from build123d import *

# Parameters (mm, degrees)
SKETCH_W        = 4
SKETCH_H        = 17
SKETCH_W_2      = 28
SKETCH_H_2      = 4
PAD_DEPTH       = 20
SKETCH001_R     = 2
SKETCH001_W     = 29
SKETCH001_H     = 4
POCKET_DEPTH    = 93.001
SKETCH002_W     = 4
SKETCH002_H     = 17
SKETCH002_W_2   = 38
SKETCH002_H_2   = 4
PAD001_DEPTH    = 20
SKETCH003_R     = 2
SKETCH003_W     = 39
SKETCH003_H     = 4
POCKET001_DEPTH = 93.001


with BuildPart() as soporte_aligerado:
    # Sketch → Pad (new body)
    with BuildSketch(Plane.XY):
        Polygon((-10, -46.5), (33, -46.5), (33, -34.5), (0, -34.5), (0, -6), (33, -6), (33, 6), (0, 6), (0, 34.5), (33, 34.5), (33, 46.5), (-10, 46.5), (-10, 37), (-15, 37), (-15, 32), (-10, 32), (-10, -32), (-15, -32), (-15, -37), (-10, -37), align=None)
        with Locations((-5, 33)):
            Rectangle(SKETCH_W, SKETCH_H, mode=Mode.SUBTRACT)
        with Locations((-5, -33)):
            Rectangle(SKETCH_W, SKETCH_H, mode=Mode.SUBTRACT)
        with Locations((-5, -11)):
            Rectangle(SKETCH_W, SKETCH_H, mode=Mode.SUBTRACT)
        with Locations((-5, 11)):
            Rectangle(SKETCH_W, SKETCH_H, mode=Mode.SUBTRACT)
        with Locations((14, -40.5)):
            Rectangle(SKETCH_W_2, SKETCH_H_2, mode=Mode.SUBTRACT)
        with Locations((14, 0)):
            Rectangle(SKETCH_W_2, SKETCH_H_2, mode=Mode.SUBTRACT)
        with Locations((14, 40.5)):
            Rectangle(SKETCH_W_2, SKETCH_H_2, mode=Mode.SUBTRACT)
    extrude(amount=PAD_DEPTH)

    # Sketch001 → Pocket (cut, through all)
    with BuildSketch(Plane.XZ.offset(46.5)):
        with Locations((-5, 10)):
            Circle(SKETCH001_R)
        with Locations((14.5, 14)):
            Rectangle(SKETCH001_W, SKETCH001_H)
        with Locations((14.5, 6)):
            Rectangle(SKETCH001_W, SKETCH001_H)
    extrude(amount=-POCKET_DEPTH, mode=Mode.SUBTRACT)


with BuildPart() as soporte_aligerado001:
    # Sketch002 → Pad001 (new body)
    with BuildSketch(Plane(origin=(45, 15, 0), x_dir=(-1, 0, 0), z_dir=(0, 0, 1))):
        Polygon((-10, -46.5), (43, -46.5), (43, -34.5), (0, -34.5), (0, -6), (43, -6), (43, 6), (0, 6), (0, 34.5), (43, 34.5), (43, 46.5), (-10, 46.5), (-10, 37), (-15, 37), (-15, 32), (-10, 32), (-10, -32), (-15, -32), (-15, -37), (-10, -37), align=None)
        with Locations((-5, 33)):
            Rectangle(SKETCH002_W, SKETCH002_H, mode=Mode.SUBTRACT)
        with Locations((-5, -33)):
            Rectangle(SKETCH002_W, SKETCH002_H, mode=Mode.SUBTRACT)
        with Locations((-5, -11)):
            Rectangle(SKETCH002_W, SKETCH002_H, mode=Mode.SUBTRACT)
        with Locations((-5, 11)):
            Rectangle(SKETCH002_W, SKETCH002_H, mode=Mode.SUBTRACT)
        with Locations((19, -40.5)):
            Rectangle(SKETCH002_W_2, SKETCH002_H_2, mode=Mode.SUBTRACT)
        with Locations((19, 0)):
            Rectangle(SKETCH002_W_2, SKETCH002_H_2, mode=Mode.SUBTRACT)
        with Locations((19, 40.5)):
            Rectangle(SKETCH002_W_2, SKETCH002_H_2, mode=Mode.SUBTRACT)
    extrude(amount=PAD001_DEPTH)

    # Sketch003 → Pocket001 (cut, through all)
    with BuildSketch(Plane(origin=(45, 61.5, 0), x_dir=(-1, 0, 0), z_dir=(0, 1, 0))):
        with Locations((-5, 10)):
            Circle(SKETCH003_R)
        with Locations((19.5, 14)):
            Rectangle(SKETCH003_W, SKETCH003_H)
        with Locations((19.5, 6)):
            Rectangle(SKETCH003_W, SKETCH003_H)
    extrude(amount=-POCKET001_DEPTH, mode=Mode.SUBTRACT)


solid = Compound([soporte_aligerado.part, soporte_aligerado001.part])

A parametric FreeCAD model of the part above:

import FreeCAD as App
import Part
import Sketcher
from FreeCAD import Vector


def add_polygon(sketch, points):
    """Adds a closed chain of lines whose ends are joined by coincident constraints."""
    first, n = sketch.GeometryCount, len(points)
    for a, b in zip(points, points[1:] + points[:1]):
        sketch.addGeometry(Part.LineSegment(App.Vector(*a, 0), App.Vector(*b, 0)), False)
    for i in range(n):
        sketch.addConstraint(Sketcher.Constraint("Coincident", first + i, 2, first + (i + 1) % n, 1))

doc = App.newDocument("Part")
params = doc.addObject("Spreadsheet::Sheet", "Params")
for row, (alias, value) in enumerate([
    ("sketch1_width", "43 mm"),
    ("sketch1_width2", "33 mm"),
    ("sketch1_width3", "5 mm"),
    ("sketch1_width4", "4 mm"),
    ("sketch1_width5", "28 mm"),
    ("pad1_length", "20 mm"),
    ("sketch2_diameter", "4 mm"),
    ("sketch2_width", "29 mm"),
    ("sketch2_height", "4 mm"),
    ("sketch3_width", "53 mm"),
    ("sketch3_width2", "43 mm"),
    ("sketch3_width3", "5 mm"),
    ("sketch3_width4", "4 mm"),
    ("sketch3_width5", "38 mm"),
    ("pad2_length", "20 mm"),
    ("sketch4_diameter", "4 mm"),
    ("sketch4_width", "39 mm"),
    ("sketch4_height", "4 mm"),
], start=1):
    params.set(f"A{row}", alias)
    params.set(f"B{row}", "=" + value)
    params.setAlias(f"B{row}", alias)

body = doc.addObject("PartDesign::Body", "Body")

sketch1 = body.newObject("Sketcher::SketchObject", "Sketch")
sketch1.AttachmentSupport = (doc.getObject("XY_Plane"), [""])
sketch1.MapMode = "FlatFace"
add_polygon(sketch1, [(-10, -46.5), (33, -46.5), (33, -34.5), (0, -34.5), (0, -6), (33, -6), (33, 6), (0, 6), (0, 34.5), (33, 34.5), (33, 46.5), (-10, 46.5), (-10, 37), (-15, 37), (-15, 32), (-10, 32), (-10, -32), (-15, -32), (-15, -37), (-10, -37)])
add_polygon(sketch1, [(-3, -41.5), (-7, -41.5), (-7, -24.5), (-3, -24.5)])
add_polygon(sketch1, [(-3, -19.5), (-7, -19.5), (-7, -2.5), (-3, -2.5)])
add_polygon(sketch1, [(28, -42.5), (0, -42.5), (0, -38.5), (28, -38.5)])
add_polygon(sketch1, [(-3, 2.5), (-7, 2.5), (-7, 19.5), (-3, 19.5)])
add_polygon(sketch1, [(-3, 24.5), (-7, 24.5), (-7, 41.5), (-3, 41.5)])
add_polygon(sketch1, [(28, -2), (0, -2), (0, 2), (28, 2)])
add_polygon(sketch1, [(28, 38.5), (0, 38.5), (0, 42.5), (28, 42.5)])
sketch1.addConstraint(Sketcher.Constraint("Horizontal", 0))
sketch1.addConstraint(Sketcher.Constraint("Vertical", 1))
sketch1.addConstraint(Sketcher.Constraint("Horizontal", 2))
sketch1.addConstraint(Sketcher.Constraint("Vertical", 3))
sketch1.addConstraint(Sketcher.Constraint("Horizontal", 4))
sketch1.addConstraint(Sketcher.Constraint("Vertical", 5))
sketch1.addConstraint(Sketcher.Constraint("Horizontal", 6))
sketch1.addConstraint(Sketcher.Constraint("Vertical", 7))
sketch1.addConstraint(Sketcher.Constraint("Horizontal", 8))
sketch1.addConstraint(Sketcher.Constraint("Vertical", 9))
sketch1.addConstraint(Sketcher.Constraint("Horizontal", 10))
sketch1.addConstraint(Sketcher.Constraint("Vertical", 11))
sketch1.addConstraint(Sketcher.Constraint("Horizontal", 12))
sketch1.addConstraint(Sketcher.Constraint("Vertical", 13))
sketch1.addConstraint(Sketcher.Constraint("Horizontal", 14))
sketch1.addConstraint(Sketcher.Constraint("Vertical", 15))
sketch1.addConstraint(Sketcher.Constraint("Horizontal", 16))
sketch1.addConstraint(Sketcher.Constraint("Vertical", 17))
sketch1.addConstraint(Sketcher.Constraint("Horizontal", 18))
sketch1.addConstraint(Sketcher.Constraint("Vertical", 19))
sketch1.addConstraint(Sketcher.Constraint("Horizontal", 20))
sketch1.addConstraint(Sketcher.Constraint("Vertical", 21))
sketch1.addConstraint(Sketcher.Constraint("Horizontal", 22))
sketch1.addConstraint(Sketcher.Constraint("Vertical", 23))
sketch1.addConstraint(Sketcher.Constraint("Horizontal", 24))
sketch1.addConstraint(Sketcher.Constraint("Vertical", 25))
sketch1.addConstraint(Sketcher.Constraint("Horizontal", 26))
sketch1.addConstraint(Sketcher.Constraint("Vertical", 27))
sketch1.addConstraint(Sketcher.Constraint("Horizontal", 28))
sketch1.addConstraint(Sketcher.Constraint("Vertical", 29))
sketch1.addConstraint(Sketcher.Constraint("Horizontal", 30))
sketch1.addConstraint(Sketcher.Constraint("Vertical", 31))
sketch1.addConstraint(Sketcher.Constraint("Horizontal", 32))
sketch1.addConstraint(Sketcher.Constraint("Vertical", 33))
sketch1.addConstraint(Sketcher.Constraint("Horizontal", 34))
sketch1.addConstraint(Sketcher.Constraint("Vertical", 35))
sketch1.addConstraint(Sketcher.Constraint("Horizontal", 36))
sketch1.addConstraint(Sketcher.Constraint("Vertical", 37))
sketch1.addConstraint(Sketcher.Constraint("Horizontal", 38))
sketch1.addConstraint(Sketcher.Constraint("Vertical", 39))
sketch1.addConstraint(Sketcher.Constraint("Horizontal", 40))
sketch1.addConstraint(Sketcher.Constraint("Vertical", 41))
sketch1.addConstraint(Sketcher.Constraint("Horizontal", 42))
sketch1.addConstraint(Sketcher.Constraint("Vertical", 43))
sketch1.addConstraint(Sketcher.Constraint("Horizontal", 44))
sketch1.addConstraint(Sketcher.Constraint("Vertical", 45))
sketch1.addConstraint(Sketcher.Constraint("Horizontal", 46))
sketch1.addConstraint(Sketcher.Constraint("Vertical", 47))
sketch1.addConstraint(Sketcher.Constraint("Symmetric", 3, 2, 6, 2, -1, 1))
sketch1.addConstraint(Sketcher.Constraint("Symmetric", 40, 2, 41, 2, -1, 1))
sketch1.addConstraint(Sketcher.Constraint("Symmetric", 29, 2, 44, 2, -1, 1))
sketch1.addConstraint(Sketcher.Constraint("Symmetric", 2, 2, 7, 2, -1))
sketch1.addConstraint(Sketcher.Constraint("Symmetric", 0, 2, 9, 2, -1))
sketch1.addConstraint(Sketcher.Constraint("Symmetric", 13, 2, 16, 2, -1))
sketch1.addConstraint(Sketcher.Constraint("Symmetric", 11, 2, 18, 2, -1))
sketch1.addConstraint(Sketcher.Constraint("Symmetric", 25, 2, 32, 2, -1))
sketch1.addConstraint(Sketcher.Constraint("Symmetric", 27, 2, 34, 2, -1))
sketch1.addConstraint(Sketcher.Constraint("Symmetric", 21, 2, 36, 2, -1))
sketch1.addConstraint(Sketcher.Constraint("Symmetric", 23, 2, 38, 2, -1))
sketch1.addConstraint(Sketcher.Constraint("Symmetric", 28, 2, 45, 2, -1))
sketch1.addConstraint(Sketcher.Constraint("Vertical", 1, 2, 4, 2))
sketch1.addConstraint(Sketcher.Constraint("Vertical", 11, 2, 14, 2))
sketch1.addConstraint(Sketcher.Constraint("Vertical", 21, 2, 24, 2))
sketch1.addConstraint(Sketcher.Constraint("Vertical", 23, 2, 26, 2))
sketch1.addConstraint(Sketcher.Constraint("Vertical", 31, 2, 42, 2))
sketch1.addConstraint(Sketcher.Constraint("Vertical", 43, 2, 46, 2))
sketch1.addConstraint(Sketcher.Constraint("Equal", 1, 5))
sketch1.addConstraint(Sketcher.Constraint("Equal", 18, 13))
sketch1.addConstraint(Sketcher.Constraint("Equal", 23, 25))
sketch1.addConstraint(Sketcher.Constraint("Equal", 38, 29))
sketch1.addConstraint(Sketcher.Constraint("Equal", 31, 41))
sketch1.addConstraint(Sketcher.Constraint("DistanceX", 0, 1, 0, 2, 43.0))
sketch1.addConstraint(Sketcher.Constraint("DistanceX", 2, 2, 2, 1, 33.0))
sketch1.addConstraint(Sketcher.Constraint("DistanceX", 12, 2, 12, 1, 5.0))
sketch1.addConstraint(Sketcher.Constraint("DistanceX", 20, 2, 20, 1, 4.0))
sketch1.addConstraint(Sketcher.Constraint("DistanceX", 28, 2, 28, 1, 28.0))
sketch1.addConstraint(Sketcher.Constraint("DistanceY", 1, 1, 1, 2, 12.0))
sketch1.addConstraint(Sketcher.Constraint("DistanceY", 15, 2, 15, 1, 64.0))
sketch1.addConstraint(Sketcher.Constraint("DistanceY", 21, 1, 21, 2, 17.0))
sketch1.addConstraint(Sketcher.Constraint("DistanceY", 3, 1, 3, 2, 28.5))
sketch1.addConstraint(Sketcher.Constraint("DistanceX", 20, 2, -1, 1, 7.0))
sketch1.addConstraint(Sketcher.Constraint("DistanceY", 19, 2, 20, 2, 5.0))
sketch1.addConstraint(Sketcher.Constraint("DistanceY", 21, 2, 24, 2, 5.0))
sketch1.addConstraint(Sketcher.Constraint("DistanceY", 28, 2, 23, 2, 1.0))
sketch1.setExpression("Constraints[119]", "Params.sketch1_width")
sketch1.setExpression("Constraints[120]", "Params.sketch1_width2")
sketch1.setExpression("Constraints[121]", "Params.sketch1_width3")
sketch1.setExpression("Constraints[122]", "Params.sketch1_width4")
sketch1.setExpression("Constraints[123]", "Params.sketch1_width5")
pad1 = body.newObject("PartDesign::Pad", "Pad")
pad1.Profile = sketch1
pad1.setExpression("Length", "Params.pad1_length")

sketch2 = body.newObject("Sketcher::SketchObject", "Sketch001")
sketch2.AttachmentSupport = (doc.getObject("XZ_Plane"), [""])
sketch2.MapMode = "FlatFace"
sketch2.AttachmentOffset = App.Placement(Vector(0, 0, 46.5), App.Rotation())
sketch2.addGeometry(Part.Circle(Vector(-5, 10, 0), Vector(0, 0, 1), 2), False)
add_polygon(sketch2, [(0, 16), (0, 12), (29, 12), (29, 16)])
add_polygon(sketch2, [(0, 8), (0, 4), (29, 4), (29, 8)])
sketch2.addConstraint(Sketcher.Constraint("Vertical", 1))
sketch2.addConstraint(Sketcher.Constraint("Horizontal", 2))
sketch2.addConstraint(Sketcher.Constraint("Vertical", 3))
sketch2.addConstraint(Sketcher.Constraint("Horizontal", 4))
sketch2.addConstraint(Sketcher.Constraint("Vertical", 5))
sketch2.addConstraint(Sketcher.Constraint("Horizontal", 6))
sketch2.addConstraint(Sketcher.Constraint("Vertical", 7))
sketch2.addConstraint(Sketcher.Constraint("Horizontal", 8))
sketch2.addConstraint(Sketcher.Constraint("PointOnObject", 1, 2, -2))
sketch2.addConstraint(Sketcher.Constraint("PointOnObject", 5, 2, -2))
sketch2.addConstraint(Sketcher.Constraint("Vertical", 3, 2, 6, 2))
sketch2.addConstraint(Sketcher.Constraint("Equal", 3, 5))
sketch2.addConstraint(Sketcher.Constraint("Diameter", 0, 4.0))
sketch2.addConstraint(Sketcher.Constraint("DistanceX", 2, 1, 2, 2, 29.0))
sketch2.addConstraint(Sketcher.Constraint("DistanceY", 1, 2, 1, 1, 4.0))
sketch2.addConstraint(Sketcher.Constraint("DistanceX", 0, 3, -1, 1, 5.0))
sketch2.addConstraint(Sketcher.Constraint("DistanceY", -1, 1, 0, 3, 10.0))
sketch2.addConstraint(Sketcher.Constraint("DistanceY", -1, 1, 1, 2, 12.0))
sketch2.addConstraint(Sketcher.Constraint("DistanceY", -1, 1, 5, 2, 4.0))
sketch2.setExpression("Constraints[20]", "Params.sketch2_diameter")
sketch2.setExpression("Constraints[21]", "Params.sketch2_width")
sketch2.setExpression("Constraints[22]", "Params.sketch2_height")
pocket1 = body.newObject("PartDesign::Pocket", "Pocket")
pocket1.Profile = sketch2
pocket1.Type = "ThroughAll"
body2 = doc.addObject("PartDesign::Body", "Body001")

sketch3 = body2.newObject("Sketcher::SketchObject", "Sketch002")
sketch3.AttachmentSupport = (doc.getObject("XY_Plane001"), [""])
sketch3.MapMode = "FlatFace"
add_polygon(sketch3, [(55, 61.5), (2, 61.5), (2, 49.5), (45, 49.5), (45, 21), (2, 21), (2, 9), (45, 9), (45, -19.5), (2, -19.5), (2, -31.5), (55, -31.5), (55, -22), (60, -22), (60, -17), (55, -17), (55, 47), (60, 47), (60, 52), (55, 52)])
add_polygon(sketch3, [(48, 56.5), (52, 56.5), (52, 39.5), (48, 39.5)])
add_polygon(sketch3, [(48, 34.5), (52, 34.5), (52, 17.5), (48, 17.5)])
add_polygon(sketch3, [(7, 57.5), (45, 57.5), (45, 53.5), (7, 53.5)])
add_polygon(sketch3, [(48, 12.5), (52, 12.5), (52, -4.5), (48, -4.5)])
add_polygon(sketch3, [(48, -9.5), (52, -9.5), (52, -26.5), (48, -26.5)])
add_polygon(sketch3, [(7, 17), (45, 17), (45, 13), (7, 13)])
add_polygon(sketch3, [(7, -23.5), (45, -23.5), (45, -27.5), (7, -27.5)])
sketch3.addConstraint(Sketcher.Constraint("Horizontal", 0))
sketch3.addConstraint(Sketcher.Constraint("Vertical", 1))
sketch3.addConstraint(Sketcher.Constraint("Horizontal", 2))
sketch3.addConstraint(Sketcher.Constraint("Vertical", 3))
sketch3.addConstraint(Sketcher.Constraint("Horizontal", 4))
sketch3.addConstraint(Sketcher.Constraint("Vertical", 5))
sketch3.addConstraint(Sketcher.Constraint("Horizontal", 6))
sketch3.addConstraint(Sketcher.Constraint("Vertical", 7))
sketch3.addConstraint(Sketcher.Constraint("Horizontal", 8))
sketch3.addConstraint(Sketcher.Constraint("Vertical", 9))
sketch3.addConstraint(Sketcher.Constraint("Horizontal", 10))
sketch3.addConstraint(Sketcher.Constraint("Vertical", 11))
sketch3.addConstraint(Sketcher.Constraint("Horizontal", 12))
sketch3.addConstraint(Sketcher.Constraint("Vertical", 13))
sketch3.addConstraint(Sketcher.Constraint("Horizontal", 14))
sketch3.addConstraint(Sketcher.Constraint("Vertical", 15))
sketch3.addConstraint(Sketcher.Constraint("Horizontal", 16))
sketch3.addConstraint(Sketcher.Constraint("Vertical", 17))
sketch3.addConstraint(Sketcher.Constraint("Horizontal", 18))
sketch3.addConstraint(Sketcher.Constraint("Vertical", 19))
sketch3.addConstraint(Sketcher.Constraint("Horizontal", 20))
sketch3.addConstraint(Sketcher.Constraint("Vertical", 21))
sketch3.addConstraint(Sketcher.Constraint("Horizontal", 22))
sketch3.addConstraint(Sketcher.Constraint("Vertical", 23))
sketch3.addConstraint(Sketcher.Constraint("Horizontal", 24))
sketch3.addConstraint(Sketcher.Constraint("Vertical", 25))
sketch3.addConstraint(Sketcher.Constraint("Horizontal", 26))
sketch3.addConstraint(Sketcher.Constraint("Vertical", 27))
sketch3.addConstraint(Sketcher.Constraint("Horizontal", 28))
sketch3.addConstraint(Sketcher.Constraint("Vertical", 29))
sketch3.addConstraint(Sketcher.Constraint("Horizontal", 30))
sketch3.addConstraint(Sketcher.Constraint("Vertical", 31))
sketch3.addConstraint(Sketcher.Constraint("Horizontal", 32))
sketch3.addConstraint(Sketcher.Constraint("Vertical", 33))
sketch3.addConstraint(Sketcher.Constraint("Horizontal", 34))
sketch3.addConstraint(Sketcher.Constraint("Vertical", 35))
sketch3.addConstraint(Sketcher.Constraint("Horizontal", 36))
sketch3.addConstraint(Sketcher.Constraint("Vertical", 37))
sketch3.addConstraint(Sketcher.Constraint("Horizontal", 38))
sketch3.addConstraint(Sketcher.Constraint("Vertical", 39))
sketch3.addConstraint(Sketcher.Constraint("Horizontal", 40))
sketch3.addConstraint(Sketcher.Constraint("Vertical", 41))
sketch3.addConstraint(Sketcher.Constraint("Horizontal", 42))
sketch3.addConstraint(Sketcher.Constraint("Vertical", 43))
sketch3.addConstraint(Sketcher.Constraint("Horizontal", 44))
sketch3.addConstraint(Sketcher.Constraint("Vertical", 45))
sketch3.addConstraint(Sketcher.Constraint("Horizontal", 46))
sketch3.addConstraint(Sketcher.Constraint("Vertical", 47))
sketch3.addConstraint(Sketcher.Constraint("Vertical", 1, 2, 4, 2))
sketch3.addConstraint(Sketcher.Constraint("Vertical", 3, 2, 6, 2))
sketch3.addConstraint(Sketcher.Constraint("Vertical", 5, 2, 8, 2))
sketch3.addConstraint(Sketcher.Constraint("Vertical", 11, 2, 14, 2))
sketch3.addConstraint(Sketcher.Constraint("Vertical", 13, 2, 16, 2))
sketch3.addConstraint(Sketcher.Constraint("Vertical", 15, 2, 18, 2))
sketch3.addConstraint(Sketcher.Constraint("Vertical", 21, 2, 24, 2))
sketch3.addConstraint(Sketcher.Constraint("Vertical", 23, 2, 26, 2))
sketch3.addConstraint(Sketcher.Constraint("Vertical", 7, 2, 28, 2))
sketch3.addConstraint(Sketcher.Constraint("Vertical", 25, 2, 32, 2))
sketch3.addConstraint(Sketcher.Constraint("Vertical", 27, 2, 34, 2))
sketch3.addConstraint(Sketcher.Constraint("Vertical", 33, 2, 36, 2))
sketch3.addConstraint(Sketcher.Constraint("Vertical", 35, 2, 38, 2))
sketch3.addConstraint(Sketcher.Constraint("Vertical", 29, 2, 40, 2))
sketch3.addConstraint(Sketcher.Constraint("Vertical", 31, 2, 42, 2))
sketch3.addConstraint(Sketcher.Constraint("Vertical", 41, 2, 44, 2))
sketch3.addConstraint(Sketcher.Constraint("Vertical", 43, 2, 46, 2))
sketch3.addConstraint(Sketcher.Constraint("Equal", 1, 5))
sketch3.addConstraint(Sketcher.Constraint("Equal", 3, 7))
sketch3.addConstraint(Sketcher.Constraint("Equal", 5, 9))
sketch3.addConstraint(Sketcher.Constraint("Equal", 18, 13))
sketch3.addConstraint(Sketcher.Constraint("Equal", 13, 17))
sketch3.addConstraint(Sketcher.Constraint("Equal", 11, 19))
sketch3.addConstraint(Sketcher.Constraint("Equal", 23, 25))
sketch3.addConstraint(Sketcher.Constraint("Equal", 38, 29))
sketch3.addConstraint(Sketcher.Constraint("Equal", 27, 33))
sketch3.addConstraint(Sketcher.Constraint("Equal", 35, 37))
sketch3.addConstraint(Sketcher.Constraint("Equal", 31, 41))
sketch3.addConstraint(Sketcher.Constraint("Equal", 43, 45))
sketch3.addConstraint(Sketcher.Constraint("DistanceX", 0, 2, 0, 1, 53.0))
sketch3.addConstraint(Sketcher.Constraint("DistanceX", 2, 1, 2, 2, 43.0))
sketch3.addConstraint(Sketcher.Constraint("DistanceX", 12, 1, 12, 2, 5.0))
sketch3.addConstraint(Sketcher.Constraint("DistanceX", 20, 1, 20, 2, 4.0))
sketch3.addConstraint(Sketcher.Constraint("DistanceX", 28, 1, 28, 2, 38.0))
sketch3.addConstraint(Sketcher.Constraint("DistanceY", 1, 2, 1, 1, 12.0))
sketch3.addConstraint(Sketcher.Constraint("DistanceY", 15, 1, 15, 2, 64.0))
sketch3.addConstraint(Sketcher.Constraint("DistanceY", 21, 2, 21, 1, 17.0))
sketch3.addConstraint(Sketcher.Constraint("DistanceY", 3, 2, 3, 1, 28.5))
sketch3.addConstraint(Sketcher.Constraint("DistanceX", -1, 1, 0, 2, 2.0))
sketch3.addConstraint(Sketcher.Constraint("DistanceY", -1, 1, 3, 2, 21.0))
sketch3.addConstraint(Sketcher.Constraint("DistanceX", -1, 1, 20, 2, 52.0))
sketch3.addConstraint(Sketcher.Constraint("DistanceY", -1, 1, 40, 2, 17.0))
sketch3.addConstraint(Sketcher.Constraint("DistanceY", 20, 2, 19, 2, 5.0))
sketch3.addConstraint(Sketcher.Constraint("DistanceY", 24, 2, 21, 2, 5.0))
sketch3.addConstraint(Sketcher.Constraint("DistanceY", 23, 2, 28, 2, 1.0))
sketch3.addConstraint(Sketcher.Constraint("DistanceY", 32, 2, 25, 2, 5.0))
sketch3.addConstraint(Sketcher.Constraint("DistanceY", 36, 2, 33, 2, 5.0))
sketch3.addConstraint(Sketcher.Constraint("DistanceY", 44, 2, 7, 2, 4.0))
sketch3.setExpression("Constraints[125]", "Params.sketch3_width")
sketch3.setExpression("Constraints[126]", "Params.sketch3_width2")
sketch3.setExpression("Constraints[127]", "Params.sketch3_width3")
sketch3.setExpression("Constraints[128]", "Params.sketch3_width4")
sketch3.setExpression("Constraints[129]", "Params.sketch3_width5")
pad2 = body2.newObject("PartDesign::Pad", "Pad001")
pad2.Profile = sketch3
pad2.setExpression("Length", "Params.pad2_length")

sketch4 = body2.newObject("Sketcher::SketchObject", "Sketch003")
sketch4.AttachmentSupport = (doc.getObject("XZ_Plane001"), [""])
sketch4.MapMode = "FlatFace"
sketch4.AttachmentOffset = App.Placement(Vector(0, 0, -61.5), App.Rotation())
sketch4.addGeometry(Part.Circle(Vector(50, 10, 0), Vector(0, 0, 1), 2), False)
add_polygon(sketch4, [(45, 16), (45, 12), (6, 12), (6, 16)])
add_polygon(sketch4, [(45, 8), (45, 4), (6, 4), (6, 8)])
sketch4.addConstraint(Sketcher.Constraint("Vertical", 1))
sketch4.addConstraint(Sketcher.Constraint("Horizontal", 2))
sketch4.addConstraint(Sketcher.Constraint("Vertical", 3))
sketch4.addConstraint(Sketcher.Constraint("Horizontal", 4))
sketch4.addConstraint(Sketcher.Constraint("Vertical", 5))
sketch4.addConstraint(Sketcher.Constraint("Horizontal", 6))
sketch4.addConstraint(Sketcher.Constraint("Vertical", 7))
sketch4.addConstraint(Sketcher.Constraint("Horizontal", 8))
sketch4.addConstraint(Sketcher.Constraint("Vertical", 4, 2, 5, 2))
sketch4.addConstraint(Sketcher.Constraint("Vertical", 3, 2, 6, 2))
sketch4.addConstraint(Sketcher.Constraint("Equal", 3, 5))
sketch4.addConstraint(Sketcher.Constraint("Diameter", 0, 4.0))
sketch4.addConstraint(Sketcher.Constraint("DistanceX", 2, 2, 2, 1, 39.0))
sketch4.addConstraint(Sketcher.Constraint("DistanceY", 1, 2, 1, 1, 4.0))
sketch4.addConstraint(Sketcher.Constraint("DistanceX", -1, 1, 0, 3, 50.0))
sketch4.addConstraint(Sketcher.Constraint("DistanceY", -1, 1, 0, 3, 10.0))
sketch4.addConstraint(Sketcher.Constraint("DistanceX", -1, 1, 1, 2, 45.0))
sketch4.addConstraint(Sketcher.Constraint("DistanceY", -1, 1, 1, 2, 12.0))
sketch4.addConstraint(Sketcher.Constraint("DistanceY", -1, 1, 5, 2, 4.0))
sketch4.setExpression("Constraints[19]", "Params.sketch4_diameter")
sketch4.setExpression("Constraints[20]", "Params.sketch4_width")
sketch4.setExpression("Constraints[21]", "Params.sketch4_height")
pocket2 = body2.newObject("PartDesign::Pocket", "Pocket001")
pocket2.Profile = sketch4
pocket2.Type = "ThroughAll"
pocket2.Reversed = True

doc.recompute()
